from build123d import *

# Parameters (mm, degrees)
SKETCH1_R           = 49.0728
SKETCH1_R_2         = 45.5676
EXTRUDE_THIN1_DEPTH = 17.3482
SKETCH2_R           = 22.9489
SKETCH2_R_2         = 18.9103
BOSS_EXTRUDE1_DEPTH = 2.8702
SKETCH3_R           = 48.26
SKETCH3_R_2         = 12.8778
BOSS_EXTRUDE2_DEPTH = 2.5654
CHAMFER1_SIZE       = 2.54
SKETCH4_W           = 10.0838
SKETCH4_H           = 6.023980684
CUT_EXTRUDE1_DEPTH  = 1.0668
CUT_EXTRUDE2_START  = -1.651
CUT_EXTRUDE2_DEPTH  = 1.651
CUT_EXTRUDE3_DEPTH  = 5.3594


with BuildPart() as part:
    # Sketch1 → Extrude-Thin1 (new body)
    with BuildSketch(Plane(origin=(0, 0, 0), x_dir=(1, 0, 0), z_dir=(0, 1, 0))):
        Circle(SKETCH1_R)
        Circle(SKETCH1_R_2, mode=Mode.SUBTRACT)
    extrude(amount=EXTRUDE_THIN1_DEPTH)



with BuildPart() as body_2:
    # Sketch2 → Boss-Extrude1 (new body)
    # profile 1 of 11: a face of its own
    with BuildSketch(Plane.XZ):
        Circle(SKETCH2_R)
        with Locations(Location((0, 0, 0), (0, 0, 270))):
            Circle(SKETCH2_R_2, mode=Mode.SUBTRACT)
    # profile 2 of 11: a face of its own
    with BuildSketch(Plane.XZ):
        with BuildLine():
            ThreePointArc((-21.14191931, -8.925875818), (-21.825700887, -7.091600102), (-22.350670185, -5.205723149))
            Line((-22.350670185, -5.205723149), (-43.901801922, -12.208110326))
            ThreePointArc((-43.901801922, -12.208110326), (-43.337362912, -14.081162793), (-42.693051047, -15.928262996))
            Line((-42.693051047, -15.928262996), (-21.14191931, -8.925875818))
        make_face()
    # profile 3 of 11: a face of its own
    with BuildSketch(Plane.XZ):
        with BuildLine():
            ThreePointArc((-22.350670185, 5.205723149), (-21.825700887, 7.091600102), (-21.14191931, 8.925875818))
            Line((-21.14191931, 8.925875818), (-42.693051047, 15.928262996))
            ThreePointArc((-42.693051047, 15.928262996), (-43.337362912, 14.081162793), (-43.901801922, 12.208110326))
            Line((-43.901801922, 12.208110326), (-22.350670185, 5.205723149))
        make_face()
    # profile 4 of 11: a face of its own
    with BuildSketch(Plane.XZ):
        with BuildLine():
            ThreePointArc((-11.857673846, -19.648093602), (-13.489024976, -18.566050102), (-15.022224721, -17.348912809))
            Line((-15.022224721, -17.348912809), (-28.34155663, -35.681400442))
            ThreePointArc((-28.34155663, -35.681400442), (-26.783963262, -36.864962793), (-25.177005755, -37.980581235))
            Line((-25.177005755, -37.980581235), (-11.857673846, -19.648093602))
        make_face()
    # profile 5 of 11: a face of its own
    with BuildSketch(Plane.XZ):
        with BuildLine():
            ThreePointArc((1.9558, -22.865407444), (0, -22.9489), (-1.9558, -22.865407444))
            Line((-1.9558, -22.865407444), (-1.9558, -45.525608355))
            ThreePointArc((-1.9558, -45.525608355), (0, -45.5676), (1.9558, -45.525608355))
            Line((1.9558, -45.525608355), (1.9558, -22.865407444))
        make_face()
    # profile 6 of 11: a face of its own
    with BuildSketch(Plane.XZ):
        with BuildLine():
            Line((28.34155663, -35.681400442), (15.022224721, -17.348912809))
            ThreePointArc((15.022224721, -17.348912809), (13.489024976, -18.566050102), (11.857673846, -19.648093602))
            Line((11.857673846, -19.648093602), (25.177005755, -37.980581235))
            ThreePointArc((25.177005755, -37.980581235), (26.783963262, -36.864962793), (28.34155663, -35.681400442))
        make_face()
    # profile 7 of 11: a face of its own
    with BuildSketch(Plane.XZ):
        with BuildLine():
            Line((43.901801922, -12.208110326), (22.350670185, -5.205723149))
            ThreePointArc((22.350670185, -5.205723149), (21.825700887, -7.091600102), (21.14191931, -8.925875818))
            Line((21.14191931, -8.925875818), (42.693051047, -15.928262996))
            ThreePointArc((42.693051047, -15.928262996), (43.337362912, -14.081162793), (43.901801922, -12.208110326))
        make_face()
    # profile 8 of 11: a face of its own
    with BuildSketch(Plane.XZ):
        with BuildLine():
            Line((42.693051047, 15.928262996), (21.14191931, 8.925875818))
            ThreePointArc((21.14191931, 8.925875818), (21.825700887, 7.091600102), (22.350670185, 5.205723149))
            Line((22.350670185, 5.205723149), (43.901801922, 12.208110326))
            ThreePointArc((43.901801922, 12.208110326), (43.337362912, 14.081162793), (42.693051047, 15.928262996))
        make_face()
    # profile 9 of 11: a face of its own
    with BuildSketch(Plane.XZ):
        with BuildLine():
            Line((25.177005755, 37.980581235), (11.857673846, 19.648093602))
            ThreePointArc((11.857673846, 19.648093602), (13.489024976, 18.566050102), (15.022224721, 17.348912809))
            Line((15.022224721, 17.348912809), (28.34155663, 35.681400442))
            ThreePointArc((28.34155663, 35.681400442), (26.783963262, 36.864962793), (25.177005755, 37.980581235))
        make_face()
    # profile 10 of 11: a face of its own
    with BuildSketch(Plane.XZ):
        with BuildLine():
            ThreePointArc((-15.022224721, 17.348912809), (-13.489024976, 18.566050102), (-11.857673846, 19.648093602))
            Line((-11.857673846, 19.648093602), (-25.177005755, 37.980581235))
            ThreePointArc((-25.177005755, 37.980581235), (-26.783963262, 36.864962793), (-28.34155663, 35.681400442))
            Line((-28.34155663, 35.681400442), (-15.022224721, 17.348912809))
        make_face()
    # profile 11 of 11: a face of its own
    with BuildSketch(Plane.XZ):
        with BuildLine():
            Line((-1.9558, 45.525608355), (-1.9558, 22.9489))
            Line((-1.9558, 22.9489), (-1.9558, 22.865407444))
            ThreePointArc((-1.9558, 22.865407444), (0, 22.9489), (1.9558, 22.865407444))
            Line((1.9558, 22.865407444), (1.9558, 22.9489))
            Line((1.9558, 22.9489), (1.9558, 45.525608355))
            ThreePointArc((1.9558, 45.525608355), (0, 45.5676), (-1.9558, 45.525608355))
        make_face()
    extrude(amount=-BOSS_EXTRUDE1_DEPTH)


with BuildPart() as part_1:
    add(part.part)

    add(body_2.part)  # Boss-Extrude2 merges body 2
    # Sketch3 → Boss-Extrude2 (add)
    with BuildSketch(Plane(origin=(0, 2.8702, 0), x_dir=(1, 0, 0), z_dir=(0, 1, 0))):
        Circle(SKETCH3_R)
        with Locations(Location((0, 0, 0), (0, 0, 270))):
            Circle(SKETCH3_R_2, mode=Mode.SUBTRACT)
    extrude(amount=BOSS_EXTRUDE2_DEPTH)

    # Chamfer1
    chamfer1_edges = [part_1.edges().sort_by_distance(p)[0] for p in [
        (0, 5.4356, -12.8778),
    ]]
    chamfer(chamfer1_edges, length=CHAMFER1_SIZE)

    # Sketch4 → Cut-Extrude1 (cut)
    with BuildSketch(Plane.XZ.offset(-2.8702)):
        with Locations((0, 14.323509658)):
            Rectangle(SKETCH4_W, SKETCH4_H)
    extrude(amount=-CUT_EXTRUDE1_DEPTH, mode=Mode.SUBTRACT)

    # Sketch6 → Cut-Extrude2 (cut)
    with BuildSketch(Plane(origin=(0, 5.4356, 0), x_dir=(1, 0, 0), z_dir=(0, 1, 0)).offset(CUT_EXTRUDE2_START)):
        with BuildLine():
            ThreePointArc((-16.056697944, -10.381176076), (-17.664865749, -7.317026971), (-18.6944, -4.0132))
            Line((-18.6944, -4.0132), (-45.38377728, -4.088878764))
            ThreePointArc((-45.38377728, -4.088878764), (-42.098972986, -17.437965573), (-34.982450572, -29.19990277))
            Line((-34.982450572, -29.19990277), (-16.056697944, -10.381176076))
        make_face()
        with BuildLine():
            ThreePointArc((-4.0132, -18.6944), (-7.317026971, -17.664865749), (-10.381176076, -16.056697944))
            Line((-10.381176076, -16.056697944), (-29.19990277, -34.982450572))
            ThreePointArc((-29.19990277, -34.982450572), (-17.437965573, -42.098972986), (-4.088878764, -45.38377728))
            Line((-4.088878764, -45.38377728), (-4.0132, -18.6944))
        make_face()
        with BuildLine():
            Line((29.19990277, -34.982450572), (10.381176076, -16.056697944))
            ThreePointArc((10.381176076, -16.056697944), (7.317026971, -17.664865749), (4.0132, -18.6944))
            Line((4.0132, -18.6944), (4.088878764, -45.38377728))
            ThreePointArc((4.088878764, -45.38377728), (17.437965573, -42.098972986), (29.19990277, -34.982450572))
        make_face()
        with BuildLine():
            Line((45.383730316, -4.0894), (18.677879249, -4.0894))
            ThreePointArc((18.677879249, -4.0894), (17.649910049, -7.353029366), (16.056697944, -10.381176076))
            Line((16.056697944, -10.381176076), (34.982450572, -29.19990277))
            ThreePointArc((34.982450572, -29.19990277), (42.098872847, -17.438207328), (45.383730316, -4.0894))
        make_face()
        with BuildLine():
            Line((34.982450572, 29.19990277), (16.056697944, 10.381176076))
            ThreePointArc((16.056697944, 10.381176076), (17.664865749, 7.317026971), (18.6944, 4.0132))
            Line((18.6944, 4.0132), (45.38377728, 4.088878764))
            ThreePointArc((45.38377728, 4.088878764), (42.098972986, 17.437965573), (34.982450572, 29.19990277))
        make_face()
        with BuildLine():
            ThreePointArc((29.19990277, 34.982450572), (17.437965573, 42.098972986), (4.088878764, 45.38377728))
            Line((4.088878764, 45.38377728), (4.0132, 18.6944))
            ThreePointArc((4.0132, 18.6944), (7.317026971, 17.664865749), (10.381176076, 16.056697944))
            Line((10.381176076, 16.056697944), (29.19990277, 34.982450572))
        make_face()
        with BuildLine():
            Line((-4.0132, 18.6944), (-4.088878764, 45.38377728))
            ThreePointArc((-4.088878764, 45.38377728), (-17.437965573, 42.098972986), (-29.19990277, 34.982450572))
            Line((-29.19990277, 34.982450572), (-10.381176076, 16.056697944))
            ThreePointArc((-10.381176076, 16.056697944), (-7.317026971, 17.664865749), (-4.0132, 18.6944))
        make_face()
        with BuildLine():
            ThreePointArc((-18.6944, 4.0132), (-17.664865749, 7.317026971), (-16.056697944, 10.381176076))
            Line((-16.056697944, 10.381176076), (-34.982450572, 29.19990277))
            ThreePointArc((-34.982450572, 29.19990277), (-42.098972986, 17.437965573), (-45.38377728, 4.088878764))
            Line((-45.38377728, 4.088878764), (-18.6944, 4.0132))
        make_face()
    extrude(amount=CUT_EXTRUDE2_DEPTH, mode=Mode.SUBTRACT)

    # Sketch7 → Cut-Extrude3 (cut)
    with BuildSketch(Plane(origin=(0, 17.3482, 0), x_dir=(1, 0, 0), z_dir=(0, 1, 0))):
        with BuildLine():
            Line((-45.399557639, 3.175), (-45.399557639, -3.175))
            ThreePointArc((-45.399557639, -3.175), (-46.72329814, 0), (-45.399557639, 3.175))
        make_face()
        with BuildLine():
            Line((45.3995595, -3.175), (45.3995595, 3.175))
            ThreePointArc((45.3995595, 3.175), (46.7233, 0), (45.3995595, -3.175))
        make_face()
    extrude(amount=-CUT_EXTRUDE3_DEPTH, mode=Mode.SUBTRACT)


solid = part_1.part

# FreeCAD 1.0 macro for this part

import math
import FreeCAD as App
import Part
import Sketcher

V = App.Vector
Q = App.Units.Quantity


def edges_at(feature, points):
    """Names of the edges that pass closest to the given points."""
    edges = feature.Shape.Edges
    near = lambda p: min(range(len(edges)), key=lambda i: edges[i].distToShape(Part.Vertex(*p))[0])
    return sorted({f"Edge{near(p) + 1}" for p in points})


def add_polygon(sketch, points):
    """Adds a closed chain of lines whose ends are joined by coincident constraints."""
    first, n = sketch.GeometryCount, len(points)
    for a, b in zip(points, points[1:] + points[:1]):
        sketch.addGeometry(Part.LineSegment(App.Vector(*a, 0), App.Vector(*b, 0)), False)
    for i in range(n):
        sketch.addConstraint(Sketcher.Constraint("Coincident", first + i, 2, first + (i + 1) % n, 1))

doc = App.newDocument("Part")
params = doc.addObject("Spreadsheet::Sheet", "Params")
for row, (alias, value) in enumerate([
    ("sketch1_diameter", "3.864 in"),
    ("sketch1_diameter2", "3.588 in"),
    ("pad1_length", "0.683 in"),
    ("sketch2_diameter", "1.489 in"),
    ("sketch2_radius", "1.794 in"),
    ("pad2_length", "0.113 in"),
    ("sketch3_diameter", "3.8 in"),
    ("sketch3_diameter2", "1.014 in"),
    ("pad3_length", "0.101 in"),
    ("chamfer_size", "0.1 in"),
    ("sketch4_width", "0.397 in"),
    ("pocket1_length", "0.042 in"),
    ("sketch5_radius", "1.794 in"),
    ("pocket2_length", "0.065 in"),
    ("sketch6_height", "0.25 in"),
    ("pocket3_length", "0.211 in"),
], start=1):
    params.set(f"A{row}", alias)
    params.set(f"B{row}", "=" + value)
    params.setAlias(f"B{row}", alias)

body = doc.addObject("PartDesign::Body", "Body")

# Sketch on XZ plane
sketch1 = doc.addObject("Sketcher::SketchObject", "Sketch")
body.addObject(sketch1)
sketch1.AttachmentSupport = (doc.XZ_Plane, [""])
sketch1.MapMode = "FlatFace"
sketch1.addGeometry(Part.Circle(V(0, 0, 0), V(0, 0, 1), 49.0728), False)
sketch1.addGeometry(Part.Circle(V(0, 0, 0), V(0, 0, 1), 45.5676), False)
sketch1.addConstraint(Sketcher.Constraint("Coincident", 0, 3, -1, 1))
sketch1.addConstraint(Sketcher.Constraint("Coincident", 1, 3, -1, 1))
sketch1.addConstraint(Sketcher.Constraint("Diameter", 0, Q("3.864 in")))
sketch1.addConstraint(Sketcher.Constraint("Diameter", 1, Q("3.588 in")))
sketch1.setExpression("Constraints[2]", "Params.sketch1_diameter")
sketch1.setExpression("Constraints[3]", "Params.sketch1_diameter2")
pad1 = doc.addObject("PartDesign::Pad", "Pad")
body.addObject(pad1)
pad1.Profile = sketch1
pad1.setExpression("Length", "Params.pad1_length")
pad1.Reversed = True
body2 = doc.addObject("PartDesign::Body", "Body001")

# Sketch on XZ plane
sketch2 = doc.addObject("Sketcher::SketchObject", "Sketch001")
body2.addObject(sketch2)
sketch2.AttachmentSupport = (doc.getObject("XZ_Plane001"), [""])
sketch2.MapMode = "FlatFace"
sketch2.addGeometry(Part.LineSegment(V(22.35067, 5.205723, 0), V(43.901802, 12.20811, 0)), False)
sketch2.addGeometry(Part.ArcOfCircle(Part.Circle(V(0, 0, 0), V(0, 0, 1), 45.5676), math.radians(15.540061), math.radians(20.459939)), False)
sketch2.addGeometry(Part.LineSegment(V(42.693051, 15.928263, 0), V(21.141919, 8.925876, 0)), False)
sketch2.addGeometry(Part.ArcOfCircle(Part.Circle(V(0, 0, 0), V(0, 0, 1), 22.9489), math.radians(22.888913), math.radians(49.111087)), False)
sketch2.addGeometry(Part.LineSegment(V(15.022225, 17.348913, 0), V(28.341557, 35.6814, 0)), False)
sketch2.addGeometry(Part.ArcOfCircle(Part.Circle(V(0, 0, 0), V(0, 0, 1), 45.5676), math.radians(51.540061), math.radians(56.459939)), False)
sketch2.addGeometry(Part.LineSegment(V(25.177006, 37.980581, 0), V(11.857674, 19.648094, 0)), False)
sketch2.addGeometry(Part.ArcOfCircle(Part.Circle(V(0, 0, 0), V(0, 0, 1), 22.9489), math.radians(58.888913), math.radians(85.111087)), False)
sketch2.addGeometry(Part.LineSegment(V(1.9558, 22.865407, 0), V(1.9558, 45.525608, 0)), False)
sketch2.addGeometry(Part.ArcOfCircle(Part.Circle(V(0, 0, 0), V(0, 0, 1), 45.5676), math.radians(87.540061), math.radians(92.459939)), False)
sketch2.addGeometry(Part.LineSegment(V(-1.9558, 45.525608, 0), V(-1.9558, 22.865407, 0)), False)
sketch2.addGeometry(Part.ArcOfCircle(Part.Circle(V(0, 0, 0), V(0, 0, 1), 22.9489), math.radians(94.888913), math.radians(121.111087)), False)
sketch2.addGeometry(Part.LineSegment(V(-11.857674, 19.648094, 0), V(-25.177006, 37.980581, 0)), False)
sketch2.addGeometry(Part.ArcOfCircle(Part.Circle(V(0, 0, 0), V(0, 0, 1), 45.5676), math.radians(123.540061), math.radians(128.459939)), False)
sketch2.addGeometry(Part.LineSegment(V(-28.341557, 35.6814, 0), V(-15.022225, 17.348913, 0)), False)
sketch2.addGeometry(Part.ArcOfCircle(Part.Circle(V(0, 0, 0), V(0, 0, 1), 22.9489), math.radians(130.888913), math.radians(157.111087)), False)
sketch2.addGeometry(Part.LineSegment(V(-21.141919, 8.925876, 0), V(-42.693051, 15.928263, 0)), False)
sketch2.addGeometry(Part.ArcOfCircle(Part.Circle(V(0, 0, 0), V(0, 0, 1), 45.5676), math.radians(159.540061), math.radians(164.459939)), False)
sketch2.addGeometry(Part.LineSegment(V(-43.901802, 12.20811, 0), V(-22.35067, 5.205723, 0)), False)
sketch2.addGeometry(Part.ArcOfCircle(Part.Circle(V(0, 0, 0), V(0, 0, 1), 22.9489), math.radians(166.888913), math.radians(193.111087)), False)
sketch2.addGeometry(Part.LineSegment(V(-22.35067, -5.205723, 0), V(-43.901802, -12.20811, 0)), False)
sketch2.addGeometry(Part.ArcOfCircle(Part.Circle(V(0, 0, 0), V(0, 0, 1), 45.5676), math.radians(-164.459939), math.radians(-159.540061)), False)
sketch2.addGeometry(Part.LineSegment(V(-42.693051, -15.928263, 0), V(-21.141919, -8.925876, 0)), False)
sketch2.addGeometry(Part.ArcOfCircle(Part.Circle(V(0, 0, 0), V(0, 0, 1), 22.9489), math.radians(-157.111087), math.radians(-130.888913)), False)
sketch2.addGeometry(Part.LineSegment(V(-15.022225, -17.348913, 0), V(-28.341557, -35.6814, 0)), False)
sketch2.addGeometry(Part.ArcOfCircle(Part.Circle(V(0, 0, 0), V(0, 0, 1), 45.5676), math.radians(-128.459939), math.radians(-123.540061)), False)
sketch2.addGeometry(Part.LineSegment(V(-25.177006, -37.980581, 0), V(-11.857674, -19.648094, 0)), False)
sketch2.addGeometry(Part.ArcOfCircle(Part.Circle(V(0, 0, 0), V(0, 0, 1), 22.9489), math.radians(-121.111087), math.radians(-94.888913)), False)
sketch2.addGeometry(Part.LineSegment(V(-1.9558, -22.865407, 0), V(-1.9558, -45.525608, 0)), False)
sketch2.addGeometry(Part.ArcOfCircle(Part.Circle(V(0, 0, 0), V(0, 0, 1), 45.5676), math.radians(-92.459939), math.radians(-87.540061)), False)
sketch2.addGeometry(Part.LineSegment(V(1.9558, -45.525608, 0), V(1.9558, -22.865407, 0)), False)
sketch2.addGeometry(Part.ArcOfCircle(Part.Circle(V(0, 0, 0), V(0, 0, 1), 22.9489), math.radians(-85.111087), math.radians(-58.888913)), False)
sketch2.addGeometry(Part.LineSegment(V(11.857674, -19.648094, 0), V(25.177006, -37.980581, 0)), False)
sketch2.addGeometry(Part.ArcOfCircle(Part.Circle(V(0, 0, 0), V(0, 0, 1), 45.5676), math.radians(-56.459939), math.radians(-51.540061)), False)
sketch2.addGeometry(Part.LineSegment(V(28.341557, -35.6814, 0), V(15.022225, -17.348913, 0)), False)
sketch2.addGeometry(Part.ArcOfCircle(Part.Circle(V(0, 0, 0), V(0, 0, 1), 22.9489), math.radians(-49.111087), math.radians(-22.888913)), False)
sketch2.addGeometry(Part.LineSegment(V(21.141919, -8.925876, 0), V(42.693051, -15.928263, 0)), False)
sketch2.addGeometry(Part.ArcOfCircle(Part.Circle(V(0, 0, 0), V(0, 0, 1), 45.5676), math.radians(-20.459939), math.radians(-15.540061)), False)
sketch2.addGeometry(Part.LineSegment(V(43.901802, -12.20811, 0), V(22.35067, -5.205723, 0)), False)
sketch2.addGeometry(Part.ArcOfCircle(Part.Circle(V(0, 0, 0), V(0, 0, 1), 22.9489), math.radians(-13.111087), math.radians(13.111087)), False)
sketch2.addGeometry(Part.Circle(V(0, 0, 0), V(0, 0, 1), 18.9103), False)
sketch2.addConstraint(Sketcher.Constraint("Coincident", 0, 2, 1, 1))
sketch2.addConstraint(Sketcher.Constraint("Coincident", 1, 2, 2, 1))
sketch2.addConstraint(Sketcher.Constraint("Coincident", 2, 2, 3, 1))
sketch2.addConstraint(Sketcher.Constraint("Coincident", 3, 2, 4, 1))
sketch2.addConstraint(Sketcher.Constraint("Coincident", 4, 2, 5, 1))
sketch2.addConstraint(Sketcher.Constraint("Coincident", 5, 2, 6, 1))
sketch2.addConstraint(Sketcher.Constraint("Coincident", 6, 2, 7, 1))
sketch2.addConstraint(Sketcher.Constraint("Coincident", 7, 2, 8, 1))
sketch2.addConstraint(Sketcher.Constraint("Coincident", 8, 2, 9, 1))
sketch2.addConstraint(Sketcher.Constraint("Coincident", 9, 2, 10, 1))
sketch2.addConstraint(Sketcher.Constraint("Coincident", 10, 2, 11, 1))
sketch2.addConstraint(Sketcher.Constraint("Coincident", 11, 2, 12, 1))
sketch2.addConstraint(Sketcher.Constraint("Coincident", 12, 2, 13, 1))
sketch2.addConstraint(Sketcher.Constraint("Coincident", 13, 2, 14, 1))
sketch2.addConstraint(Sketcher.Constraint("Coincident", 14, 2, 15, 1))
sketch2.addConstraint(Sketcher.Constraint("Coincident", 15, 2, 16, 1))
sketch2.addConstraint(Sketcher.Constraint("Coincident", 16, 2, 17, 1))
sketch2.addConstraint(Sketcher.Constraint("Coincident", 17, 2, 18, 1))
sketch2.addConstraint(Sketcher.Constraint("Coincident", 18, 2, 19, 1))
sketch2.addConstraint(Sketcher.Constraint("Coincident", 19, 2, 20, 1))
sketch2.addConstraint(Sketcher.Constraint("Coincident", 20, 2, 21, 1))
sketch2.addConstraint(Sketcher.Constraint("Coincident", 21, 2, 22, 1))
sketch2.addConstraint(Sketcher.Constraint("Coincident", 22, 2, 23, 1))
sketch2.addConstraint(Sketcher.Constraint("Coincident", 23, 2, 24, 1))
sketch2.addConstraint(Sketcher.Constraint("Coincident", 24, 2, 25, 1))
sketch2.addConstraint(Sketcher.Constraint("Coincident", 25, 2, 26, 1))
sketch2.addConstraint(Sketcher.Constraint("Coincident", 26, 2, 27, 1))
sketch2.addConstraint(Sketcher.Constraint("Coincident", 27, 2, 28, 1))
sketch2.addConstraint(Sketcher.Constraint("Coincident", 28, 2, 29, 1))
sketch2.addConstraint(Sketcher.Constraint("Coincident", 29, 2, 30, 1))
sketch2.addConstraint(Sketcher.Constraint("Coincident", 30, 2, 31, 1))
sketch2.addConstraint(Sketcher.Constraint("Coincident", 31, 2, 32, 1))
sketch2.addConstraint(Sketcher.Constraint("Coincident", 32, 2, 33, 1))
sketch2.addConstraint(Sketcher.Constraint("Coincident", 33, 2, 34, 1))
sketch2.addConstraint(Sketcher.Constraint("Coincident", 34, 2, 35, 1))
sketch2.addConstraint(Sketcher.Constraint("Coincident", 35, 2, 36, 1))
sketch2.addConstraint(Sketcher.Constraint("Coincident", 36, 2, 37, 1))
sketch2.addConstraint(Sketcher.Constraint("Coincident", 37, 2, 38, 1))
sketch2.addConstraint(Sketcher.Constraint("Coincident", 38, 2, 39, 1))
sketch2.addConstraint(Sketcher.Constraint("Coincident", 39, 2, 0, 1))
sketch2.addConstraint(Sketcher.Constraint("Vertical", 8))
sketch2.addConstraint(Sketcher.Constraint("Vertical", 10))
sketch2.addConstraint(Sketcher.Constraint("Vertical", 28))
sketch2.addConstraint(Sketcher.Constraint("Vertical", 30))
sketch2.addConstraint(Sketcher.Constraint("Coincident", 1, 3, -1, 1))
sketch2.addConstraint(Sketcher.Constraint("Coincident", 3, 3, -1, 1))
sketch2.addConstraint(Sketcher.Constraint("Coincident", 5, 3, -1, 1))
sketch2.addConstraint(Sketcher.Constraint("Coincident", 7, 3, -1, 1))
sketch2.addConstraint(Sketcher.Constraint("Coincident", 9, 3, -1, 1))
sketch2.addConstraint(Sketcher.Constraint("Coincident", 11, 3, -1, 1))
sketch2.addConstraint(Sketcher.Constraint("Coincident", 13, 3, -1, 1))
sketch2.addConstraint(Sketcher.Constraint("Coincident", 15, 3, -1, 1))
sketch2.addConstraint(Sketcher.Constraint("Coincident", 17, 3, -1, 1))
sketch2.addConstraint(Sketcher.Constraint("Coincident", 19, 3, -1, 1))
sketch2.addConstraint(Sketcher.Constraint("Coincident", 21, 3, -1, 1))
sketch2.addConstraint(Sketcher.Constraint("Coincident", 23, 3, -1, 1))
sketch2.addConstraint(Sketcher.Constraint("Coincident", 25, 3, -1, 1))
sketch2.addConstraint(Sketcher.Constraint("Coincident", 27, 3, -1, 1))
sketch2.addConstraint(Sketcher.Constraint("Coincident", 29, 3, -1, 1))
sketch2.addConstraint(Sketcher.Constraint("Coincident", 31, 3, -1, 1))
sketch2.addConstraint(Sketcher.Constraint("Coincident", 33, 3, -1, 1))
sketch2.addConstraint(Sketcher.Constraint("Coincident", 35, 3, -1, 1))
sketch2.addConstraint(Sketcher.Constraint("Coincident", 37, 3, -1, 1))
sketch2.addConstraint(Sketcher.Constraint("Coincident", 39, 3, -1, 1))
sketch2.addConstraint(Sketcher.Constraint("Coincident", 40, 3, -1, 1))
sketch2.addConstraint(Sketcher.Constraint("Equal", 1, 5))
sketch2.addConstraint(Sketcher.Constraint("Equal", 3, 7))
sketch2.addConstraint(Sketcher.Constraint("Equal", 5, 9))
sketch2.addConstraint(Sketcher.Constraint("Equal", 7, 11))
sketch2.addConstraint(Sketcher.Constraint("Equal", 9, 13))
sketch2.addConstraint(Sketcher.Constraint("Equal", 11, 15))
sketch2.addConstraint(Sketcher.Constraint("Equal", 13, 17))
sketch2.addConstraint(Sketcher.Constraint("Equal", 15, 19))
sketch2.addConstraint(Sketcher.Constraint("Equal", 17, 21))
sketch2.addConstraint(Sketcher.Constraint("Equal", 19, 23))
sketch2.addConstraint(Sketcher.Constraint("Equal", 21, 25))
sketch2.addConstraint(Sketcher.Constraint("Equal", 23, 27))
sketch2.addConstraint(Sketcher.Constraint("Equal", 25, 29))
sketch2.addConstraint(Sketcher.Constraint("Equal", 27, 31))
sketch2.addConstraint(Sketcher.Constraint("Equal", 29, 33))
sketch2.addConstraint(Sketcher.Constraint("Equal", 31, 35))
sketch2.addConstraint(Sketcher.Constraint("Equal", 33, 37))
sketch2.addConstraint(Sketcher.Constraint("Equal", 35, 39))
sketch2.addConstraint(Sketcher.Constraint("Parallel", 0, 2))
sketch2.addConstraint(Sketcher.Constraint("Parallel", 4, 6))
sketch2.addConstraint(Sketcher.Constraint("Parallel", 12, 14))
sketch2.addConstraint(Sketcher.Constraint("Parallel", 16, 18))
sketch2.addConstraint(Sketcher.Constraint("Parallel", 2, 20))
sketch2.addConstraint(Sketcher.Constraint("Parallel", 20, 22))
sketch2.addConstraint(Sketcher.Constraint("Parallel", 6, 24))
sketch2.addConstraint(Sketcher.Constraint("Parallel", 24, 26))
sketch2.addConstraint(Sketcher.Constraint("Parallel", 14, 32))
sketch2.addConstraint(Sketcher.Constraint("Parallel", 32, 34))
sketch2.addConstraint(Sketcher.Constraint("Parallel", 18, 36))
sketch2.addConstraint(Sketcher.Constraint("Parallel", 36, 38))
sketch2.addConstraint(Sketcher.Constraint("Horizontal", 8, 2, 9, 2))
sketch2.addConstraint(Sketcher.Constraint("Horizontal", 6, 2, 11, 2))
sketch2.addConstraint(Sketcher.Constraint("Horizontal", 5, 2, 12, 2))
sketch2.addConstraint(Sketcher.Constraint("Horizontal", 4, 2, 13, 2))
sketch2.addConstraint(Sketcher.Constraint("Horizontal", 2, 2, 15, 2))
sketch2.addConstraint(Sketcher.Constraint("Horizontal", 1, 2, 16, 2))
sketch2.addConstraint(Sketcher.Constraint("Horizontal", 0, 2, 17, 2))
sketch2.addConstraint(Sketcher.Constraint("Horizontal", 28, 2, 29, 2))
sketch2.addConstraint(Sketcher.Constraint("Horizontal", 26, 2, 31, 2))
sketch2.addConstraint(Sketcher.Constraint("Horizontal", 24, 2, 33, 2))
sketch2.addConstraint(Sketcher.Constraint("Horizontal", 22, 2, 35, 2))
sketch2.addConstraint(Sketcher.Constraint("Horizontal", 20, 2, 37, 2))
sketch2.addConstraint(Sketcher.Constraint("Vertical", 18, 2, 19, 2))
sketch2.addConstraint(Sketcher.Constraint("Vertical", 16, 2, 21, 2))
sketch2.addConstraint(Sketcher.Constraint("Vertical", 14, 2, 23, 2))
sketch2.addConstraint(Sketcher.Constraint("Vertical", 12, 2, 25, 2))
sketch2.addConstraint(Sketcher.Constraint("Vertical", 10, 2, 27, 2))
sketch2.addConstraint(Sketcher.Constraint("Equal", 0, 2))
sketch2.addConstraint(Sketcher.Constraint("Equal", 2, 4))
sketch2.addConstraint(Sketcher.Constraint("Equal", 4, 6))
sketch2.addConstraint(Sketcher.Constraint("Diameter", 40, Q("1.489 in")))
sketch2.addConstraint(Sketcher.Constraint("Angle", 0, Q("18 deg")))
sketch2.addConstraint(Sketcher.Constraint("Angle", 4, Q("54 deg")))
sketch2.addConstraint(Sketcher.Constraint("Radius", 1, Q("1.794 in")))
sketch2.addConstraint(Sketcher.Constraint("Radius", 3, Q("0.9035 in")))
sketch2.addConstraint(Sketcher.Constraint("DistanceX", -1, 1, 7, 2, Q("0.077 in")))
sketch2.addConstraint(Sketcher.Constraint("Distance", 0, 22.660201))
sketch2.setExpression("Constraints[115]", "Params.sketch2_diameter")
sketch2.setExpression("Constraints[118]", "Params.sketch2_radius")
pad2 = doc.addObject("PartDesign::Pad", "Pad001")
body2.addObject(pad2)
pad2.Profile = sketch2
pad2.setExpression("Length", "Params.pad2_length")
pad2.Reversed = True
doc.recompute()

boolean = doc.addObject("PartDesign::Boolean", "Boolean")
body.addObject(boolean)
boolean.Type = "Fuse"
boolean.addObjects([body2])

# Sketch on XZ plane
sketch3 = doc.addObject("Sketcher::SketchObject", "Sketch002")
body.addObject(sketch3)
sketch3.AttachmentSupport = (doc.XZ_Plane, [""])
sketch3.MapMode = "FlatFace"
sketch3.AttachmentOffset = App.Placement(V(0, 0, -0.113 * 25.4), App.Rotation())
sketch3.addGeometry(Part.Circle(V(0, 0, 0), V(0, 0, 1), 48.26), False)
sketch3.addGeometry(Part.Circle(V(0, 0, 0), V(0, 0, 1), 12.8778), False)
sketch3.addConstraint(Sketcher.Constraint("Coincident", 0, 3, -1, 1))
sketch3.addConstraint(Sketcher.Constraint("Coincident", 1, 3, -1, 1))
sketch3.addConstraint(Sketcher.Constraint("Diameter", 0, Q("3.8 in")))
sketch3.addConstraint(Sketcher.Constraint("Diameter", 1, Q("1.014 in")))
sketch3.setExpression("Constraints[2]", "Params.sketch3_diameter")
sketch3.setExpression("Constraints[3]", "Params.sketch3_diameter2")
pad3 = doc.addObject("PartDesign::Pad", "Pad002")
body.addObject(pad3)
pad3.Profile = sketch3
pad3.setExpression("Length", "Params.pad3_length")
pad3.Reversed = True
doc.recompute()

chamfer = doc.addObject("PartDesign::Chamfer", "Chamfer")
body.addObject(chamfer)
chamfer.Base = (pad3, edges_at(pad3, [(0, 5.436, -12.878)]))
chamfer.setExpression("Size", "Params.chamfer_size")

# Sketch on XZ plane
sketch4 = doc.addObject("Sketcher::SketchObject", "Sketch003")
body.addObject(sketch4)
sketch4.AttachmentSupport = (doc.XZ_Plane, [""])
sketch4.MapMode = "FlatFace"
sketch4.AttachmentOffset = App.Placement(V(0, 0, -0.113 * 25.4), App.Rotation())
add_polygon(sketch4, [(-5.0419, 17.3355), (-5.0419, 11.311519), (5.0419, 11.311519), (5.0419, 17.3355)])  # lines 0-3
sketch4.addConstraint(Sketcher.Constraint("Vertical", 0))
sketch4.addConstraint(Sketcher.Constraint("Horizontal", 1))
sketch4.addConstraint(Sketcher.Constraint("Vertical", 2))
sketch4.addConstraint(Sketcher.Constraint("Horizontal", 3))
sketch4.addConstraint(Sketcher.Constraint("DistanceX", 1, 1, 1, 2, Q("0.397 in")))
sketch4.addConstraint(Sketcher.Constraint("DistanceX", 0, 2, -1, 1, Q("0.1985 in")))
sketch4.addConstraint(Sketcher.Constraint("DistanceY", -1, 1, 2, 2, Q("0.6825 in")))
sketch4.addConstraint(Sketcher.Constraint("DistanceY", 0, 2, 0, 1, 6.023981))
sketch4.setExpression("Constraints[8]", "Params.sketch4_width")
pocket1 = doc.addObject("PartDesign::Pocket", "Pocket")
body.addObject(pocket1)
pocket1.Profile = sketch4
pocket1.setExpression("Length", "Params.pocket1_length")

# Sketch on XZ plane
sketch5 = doc.addObject("Sketcher::SketchObject", "Sketch004")
body.addObject(sketch5)
sketch5.AttachmentSupport = (doc.XZ_Plane, [""])
sketch5.MapMode = "FlatFace"
sketch5.AttachmentOffset = App.Placement(V(0, 0, -0.149 * 25.4), App.Rotation())
sketch5.addGeometry(Part.ArcOfCircle(Part.Circle(V(0, 0, 0), V(0, 0, 1), 19.120313), math.radians(147.116021), math.radians(167.883979)), False)
sketch5.addGeometry(Part.LineSegment(V(-18.6944, 4.0132, 0), V(-45.383777, 4.088879, 0)), False)
sketch5.addGeometry(Part.ArcOfCircle(Part.Circle(V(0, 0, 0), V(0, 0, 1), 45.5676), math.radians(140.148198), math.radians(174.851802)), False)
sketch5.addGeometry(Part.LineSegment(V(-34.982451, 29.199903, 0), V(-16.056698, 10.381176, 0)), False)
sketch5.addGeometry(Part.ArcOfCircle(Part.Circle(V(0, 0, 0), V(0, 0, 1), 19.120313), math.radians(102.116021), math.radians(122.883979)), False)
sketch5.addGeometry(Part.LineSegment(V(-10.381176, 16.056698, 0), V(-29.199903, 34.982451, 0)), False)
sketch5.addGeometry(Part.ArcOfCircle(Part.Circle(V(0, 0, 0), V(0, 0, 1), 45.5676), math.radians(95.148198), math.radians(129.851802)), False)
sketch5.addGeometry(Part.LineSegment(V(-4.088879, 45.383777, 0), V(-4.0132, 18.6944, 0)), False)
sketch5.addGeometry(Part.LineSegment(V(29.199903, 34.982451, 0), V(10.381176, 16.056698, 0)), False)
sketch5.addGeometry(Part.ArcOfCircle(Part.Circle(V(0, 0, 0), V(0, 0, 1), 19.120313), math.radians(57.116021), math.radians(77.883979)), False)
sketch5.addGeometry(Part.LineSegment(V(4.0132, 18.6944, 0), V(4.088879, 45.383777, 0)), False)
sketch5.addGeometry(Part.ArcOfCircle(Part.Circle(V(0, 0, 0), V(0, 0, 1), 45.5676), math.radians(50.148198), math.radians(84.851802)), False)
sketch5.addGeometry(Part.LineSegment(V(45.38373, 4.0894, 0), V(18.677879, 4.0894, 0)), False)
sketch5.addGeometry(Part.ArcOfCircle(Part.Circle(V(0, 0, 0), V(0, 0, 1), 19.120313), math.radians(12.349667), math.radians(32.883979)), False)
sketch5.addGeometry(Part.LineSegment(V(16.056698, 10.381176, 0), V(34.982451, 29.199903, 0)), False)
sketch5.addGeometry(Part.ArcOfCircle(Part.Circle(V(0, 0, 0), V(0, 0, 1), 45.5676), math.radians(5.148856), math.radians(39.851802)), False)
sketch5.addGeometry(Part.LineSegment(V(34.982451, -29.199903, 0), V(16.056698, -10.381176, 0)), False)
sketch5.addGeometry(Part.ArcOfCircle(Part.Circle(V(0, 0, 0), V(0, 0, 1), 19.120313), math.radians(-32.883979), math.radians(-12.116021)), False)
sketch5.addGeometry(Part.LineSegment(V(18.6944, -4.0132, 0), V(45.383777, -4.088879, 0)), False)
sketch5.addGeometry(Part.ArcOfCircle(Part.Circle(V(0, 0, 0), V(0, 0, 1), 45.5676), math.radians(-39.851802), math.radians(-5.148198)), False)
sketch5.addGeometry(Part.ArcOfCircle(Part.Circle(V(0, 0, 0), V(0, 0, 1), 45.5676), math.radians(-84.851802), math.radians(-50.148198)), False)
sketch5.addGeometry(Part.LineSegment(V(4.088879, -45.383777, 0), V(4.0132, -18.6944, 0)), False)
sketch5.addGeometry(Part.ArcOfCircle(Part.Circle(V(0, 0, 0), V(0, 0, 1), 19.120313), math.radians(-77.883979), math.radians(-57.116021)), False)
sketch5.addGeometry(Part.LineSegment(V(10.381176, -16.056698, 0), V(29.199903, -34.982451, 0)), False)
sketch5.addGeometry(Part.LineSegment(V(-4.0132, -18.6944, 0), V(-4.088879, -45.383777, 0)), False)
sketch5.addGeometry(Part.ArcOfCircle(Part.Circle(V(0, 0, 0), V(0, 0, 1), 45.5676), math.radians(-129.851802), math.radians(-95.148198)), False)
sketch5.addGeometry(Part.LineSegment(V(-29.199903, -34.982451, 0), V(-10.381176, -16.056698, 0)), False)
sketch5.addGeometry(Part.ArcOfCircle(Part.Circle(V(0, 0, 0), V(0, 0, 1), 19.120313), math.radians(-122.883979), math.radians(-102.116021)), False)
sketch5.addGeometry(Part.ArcOfCircle(Part.Circle(V(0, 0, 0), V(0, 0, 1), 19.120313), math.radians(-167.883979), math.radians(-147.116021)), False)
sketch5.addGeometry(Part.LineSegment(V(-16.056698, -10.381176, 0), V(-34.982451, -29.199903, 0)), False)
sketch5.addGeometry(Part.ArcOfCircle(Part.Circle(V(0, 0, 0), V(0, 0, 1), 45.5676), math.radians(-174.851802), math.radians(-140.148198)), False)
sketch5.addGeometry(Part.LineSegment(V(-45.383777, -4.088879, 0), V(-18.6944, -4.0132, 0)), False)
sketch5.addConstraint(Sketcher.Constraint("Coincident", 0, 2, 1, 1))
sketch5.addConstraint(Sketcher.Constraint("Coincident", 1, 2, 2, 2))
sketch5.addConstraint(Sketcher.Constraint("Coincident", 2, 1, 3, 1))
sketch5.addConstraint(Sketcher.Constraint("Coincident", 3, 2, 0, 1))
sketch5.addConstraint(Sketcher.Constraint("Coincident", 4, 2, 5, 1))
sketch5.addConstraint(Sketcher.Constraint("Coincident", 5, 2, 6, 2))
sketch5.addConstraint(Sketcher.Constraint("Coincident", 6, 1, 7, 1))
sketch5.addConstraint(Sketcher.Constraint("Coincident", 7, 2, 4, 1))
sketch5.addConstraint(Sketcher.Constraint("Coincident", 8, 2, 9, 1))
sketch5.addConstraint(Sketcher.Constraint("Coincident", 9, 2, 10, 1))
sketch5.addConstraint(Sketcher.Constraint("Coincident", 10, 2, 11, 2))
sketch5.addConstraint(Sketcher.Constraint("Coincident", 11, 1, 8, 1))
sketch5.addConstraint(Sketcher.Constraint("Coincident", 12, 2, 13, 1))
sketch5.addConstraint(Sketcher.Constraint("Coincident", 13, 2, 14, 1))
sketch5.addConstraint(Sketcher.Constraint("Coincident", 14, 2, 15, 2))
sketch5.addConstraint(Sketcher.Constraint("Coincident", 15, 1, 12, 1))
sketch5.addConstraint(Sketcher.Constraint("Coincident", 16, 2, 17, 1))
sketch5.addConstraint(Sketcher.Constraint("Coincident", 17, 2, 18, 1))
sketch5.addConstraint(Sketcher.Constraint("Coincident", 18, 2, 19, 2))
sketch5.addConstraint(Sketcher.Constraint("Coincident", 19, 1, 16, 1))
sketch5.addConstraint(Sketcher.Constraint("Coincident", 20, 1, 21, 1))
sketch5.addConstraint(Sketcher.Constraint("Coincident", 21, 2, 22, 1))
sketch5.addConstraint(Sketcher.Constraint("Coincident", 22, 2, 23, 1))
sketch5.addConstraint(Sketcher.Constraint("Coincident", 23, 2, 20, 2))
sketch5.addConstraint(Sketcher.Constraint("Coincident", 24, 2, 25, 2))
sketch5.addConstraint(Sketcher.Constraint("Coincident", 25, 1, 26, 1))
sketch5.addConstraint(Sketcher.Constraint("Coincident", 26, 2, 27, 1))
sketch5.addConstraint(Sketcher.Constraint("Coincident", 27, 2, 24, 1))
sketch5.addConstraint(Sketcher.Constraint("Coincident", 28, 2, 29, 1))
sketch5.addConstraint(Sketcher.Constraint("Coincident", 29, 2, 30, 2))
sketch5.addConstraint(Sketcher.Constraint("Coincident", 30, 1, 31, 1))
sketch5.addConstraint(Sketcher.Constraint("Coincident", 31, 2, 28, 1))
sketch5.addConstraint(Sketcher.Constraint("Horizontal", 12))
sketch5.addConstraint(Sketcher.Constraint("Coincident", 0, 3, -1, 1))
sketch5.addConstraint(Sketcher.Constraint("Coincident", 2, 3, -1, 1))
sketch5.addConstraint(Sketcher.Constraint("Coincident", 4, 3, -1, 1))
sketch5.addConstraint(Sketcher.Constraint("Coincident", 6, 3, -1, 1))
sketch5.addConstraint(Sketcher.Constraint("Coincident", 9, 3, -1, 1))
sketch5.addConstraint(Sketcher.Constraint("Coincident", 11, 3, -1, 1))
sketch5.addConstraint(Sketcher.Constraint("Coincident", 13, 3, -1, 1))
sketch5.addConstraint(Sketcher.Constraint("Coincident", 15, 3, -1, 1))
sketch5.addConstraint(Sketcher.Constraint("Coincident", 17, 3, -1, 1))
sketch5.addConstraint(Sketcher.Constraint("Coincident", 19, 3, -1, 1))
sketch5.addConstraint(Sketcher.Constraint("Coincident", 20, 3, -1, 1))
sketch5.addConstraint(Sketcher.Constraint("Coincident", 22, 3, -1, 1))
sketch5.addConstraint(Sketcher.Constraint("Coincident", 25, 3, -1, 1))
sketch5.addConstraint(Sketcher.Constraint("Coincident", 27, 3, -1, 1))
sketch5.addConstraint(Sketcher.Constraint("Coincident", 28, 3, -1, 1))
sketch5.addConstraint(Sketcher.Constraint("Coincident", 30, 3, -1, 1))
sketch5.addConstraint(Sketcher.Constraint("Equal", 0, 4))
sketch5.addConstraint(Sketcher.Constraint("Equal", 2, 6))
sketch5.addConstraint(Sketcher.Constraint("Equal", 4, 9))
sketch5.addConstraint(Sketcher.Constraint("Equal", 6, 11))
sketch5.addConstraint(Sketcher.Constraint("Equal", 9, 13))
sketch5.addConstraint(Sketcher.Constraint("Equal", 11, 15))
sketch5.addConstraint(Sketcher.Constraint("Equal", 13, 17))
sketch5.addConstraint(Sketcher.Constraint("Equal", 15, 19))
sketch5.addConstraint(Sketcher.Constraint("Equal", 19, 20))
sketch5.addConstraint(Sketcher.Constraint("Equal", 17, 22))
sketch5.addConstraint(Sketcher.Constraint("Equal", 20, 25))
sketch5.addConstraint(Sketcher.Constraint("Equal", 22, 27))
sketch5.addConstraint(Sketcher.Constraint("Equal", 27, 28))
sketch5.addConstraint(Sketcher.Constraint("Equal", 25, 30))
sketch5.addConstraint(Sketcher.Constraint("Perpendicular", 3, 8))
sketch5.addConstraint(Sketcher.Constraint("Perpendicular", 1, 10))
sketch5.addConstraint(Sketcher.Constraint("Perpendicular", 5, 14))
sketch5.addConstraint(Sketcher.Constraint("Perpendicular", 8, 16))
sketch5.addConstraint(Sketcher.Constraint("Perpendicular", 10, 18))
sketch5.addConstraint(Sketcher.Constraint("Parallel", 7, 21))
sketch5.addConstraint(Sketcher.Constraint("Perpendicular", 14, 23))
sketch5.addConstraint(Sketcher.Constraint("Perpendicular", 18, 24))
sketch5.addConstraint(Sketcher.Constraint("Perpendicular", 16, 26))
sketch5.addConstraint(Sketcher.Constraint("Perpendicular", 23, 29))
sketch5.addConstraint(Sketcher.Constraint("Perpendicular", 21, 31))
sketch5.addConstraint(Sketcher.Constraint("Horizontal", 4, 2, 8, 2))
sketch5.addConstraint(Sketcher.Constraint("Horizontal", 7, 2, 9, 2))
sketch5.addConstraint(Sketcher.Constraint("Horizontal", 6, 1, 10, 2))
sketch5.addConstraint(Sketcher.Constraint("Horizontal", 5, 2, 11, 1))
sketch5.addConstraint(Sketcher.Constraint("Horizontal", 3, 2, 13, 2))
sketch5.addConstraint(Sketcher.Constraint("Horizontal", 20, 1, 24, 2))
sketch5.addConstraint(Sketcher.Constraint("Horizontal", 23, 2, 25, 1))
sketch5.addConstraint(Sketcher.Constraint("Horizontal", 16, 2, 28, 2))
sketch5.addConstraint(Sketcher.Constraint("Horizontal", 18, 2, 30, 1))
sketch5.addConstraint(Sketcher.Constraint("Vertical", 13, 2, 16, 2))
sketch5.addConstraint(Sketcher.Constraint("Vertical", 10, 2, 20, 1))
sketch5.addConstraint(Sketcher.Constraint("Vertical", 8, 2, 22, 2))
sketch5.addConstraint(Sketcher.Constraint("Vertical", 1, 2, 30, 1))
sketch5.addConstraint(Sketcher.Constraint("Equal", 1, 3))
sketch5.addConstraint(Sketcher.Constraint("Equal", 3, 5))
sketch5.addConstraint(Sketcher.Constraint("Equal", 5, 7))
sketch5.addConstraint(Sketcher.Constraint("Radius", 2, Q("1.794 in")))
sketch5.addConstraint(Sketcher.Constraint("DistanceX", 0, 2, -1, 1, Q("0.736 in")))
sketch5.addConstraint(Sketcher.Constraint("DistanceY", -1, 1, 0, 2, Q("0.158 in")))
sketch5.addConstraint(Sketcher.Constraint("DistanceY", -1, 1, 12, 2, Q("0.161 in")))
sketch5.addConstraint(Sketcher.Constraint("DistanceY", 3, 2, 6, 1, 35.002601))
sketch5.addConstraint(Sketcher.Constraint("DistanceX", 12, 2, 18, 2, 26.705898))
sketch5.setExpression("Constraints[90]", "Params.sketch5_radius")
pocket2 = doc.addObject("PartDesign::Pocket", "Pocket001")
body.addObject(pocket2)
pocket2.Profile = sketch5
pocket2.setExpression("Length", "Params.pocket2_length")

# Sketch on XZ plane
sketch6 = doc.addObject("Sketcher::SketchObject", "Sketch005")
body.addObject(sketch6)
sketch6.AttachmentSupport = (doc.XZ_Plane, [""])
sketch6.MapMode = "FlatFace"
sketch6.AttachmentOffset = App.Placement(V(0, 0, -0.683 * 25.4), App.Rotation())
sketch6.addGeometry(Part.LineSegment(V(-45.399558, 3.175, 0), V(-45.399558, -3.175, 0)), False)
sketch6.addGeometry(Part.ArcOfCircle(Part.Circle(V(-42.253799, 0, 0), V(0, 0, 1), 4.469499), math.radians(134.734937), math.radians(225.265063)), False)
sketch6.addGeometry(Part.LineSegment(V(45.39956, -3.175, 0), V(45.39956, 3.175, 0)), False)
sketch6.addGeometry(Part.ArcOfCircle(Part.Circle(V(42.253801, 0, 0), V(0, 0, 1), 4.469499), math.radians(-45.265063), math.radians(45.265063)), False)
sketch6.addConstraint(Sketcher.Constraint("Coincident", 0, 1, 1, 1))
sketch6.addConstraint(Sketcher.Constraint("Coincident", 1, 2, 0, 2))
sketch6.addConstraint(Sketcher.Constraint("Coincident", 2, 1, 3, 1))
sketch6.addConstraint(Sketcher.Constraint("Coincident", 3, 2, 2, 2))
sketch6.addConstraint(Sketcher.Constraint("Vertical", 0))
sketch6.addConstraint(Sketcher.Constraint("Vertical", 2))
sketch6.addConstraint(Sketcher.Constraint("Equal", 1, 3))
sketch6.addConstraint(Sketcher.Constraint("Symmetric", 1, 3, 3, 3, -1, 1))
sketch6.addConstraint(Sketcher.Constraint("Symmetric", 1, 2, 2, 1, -2))
sketch6.addConstraint(Sketcher.Constraint("DistanceY", 0, 2, 0, 1, Q("0.25 in")))
sketch6.addConstraint(Sketcher.Constraint("Radius", 1, 4.469499))
sketch6.addConstraint(Sketcher.Constraint("DistanceX", 1, 3, -1, 1, 42.253799))
sketch6.setExpression("Constraints[9]", "Params.sketch6_height")
pocket3 = doc.addObject("PartDesign::Pocket", "Pocket002")
body.addObject(pocket3)
pocket3.Profile = sketch6
pocket3.setExpression("Length", "Params.pocket3_length")
pocket3.Reversed = True

doc.recompute()
